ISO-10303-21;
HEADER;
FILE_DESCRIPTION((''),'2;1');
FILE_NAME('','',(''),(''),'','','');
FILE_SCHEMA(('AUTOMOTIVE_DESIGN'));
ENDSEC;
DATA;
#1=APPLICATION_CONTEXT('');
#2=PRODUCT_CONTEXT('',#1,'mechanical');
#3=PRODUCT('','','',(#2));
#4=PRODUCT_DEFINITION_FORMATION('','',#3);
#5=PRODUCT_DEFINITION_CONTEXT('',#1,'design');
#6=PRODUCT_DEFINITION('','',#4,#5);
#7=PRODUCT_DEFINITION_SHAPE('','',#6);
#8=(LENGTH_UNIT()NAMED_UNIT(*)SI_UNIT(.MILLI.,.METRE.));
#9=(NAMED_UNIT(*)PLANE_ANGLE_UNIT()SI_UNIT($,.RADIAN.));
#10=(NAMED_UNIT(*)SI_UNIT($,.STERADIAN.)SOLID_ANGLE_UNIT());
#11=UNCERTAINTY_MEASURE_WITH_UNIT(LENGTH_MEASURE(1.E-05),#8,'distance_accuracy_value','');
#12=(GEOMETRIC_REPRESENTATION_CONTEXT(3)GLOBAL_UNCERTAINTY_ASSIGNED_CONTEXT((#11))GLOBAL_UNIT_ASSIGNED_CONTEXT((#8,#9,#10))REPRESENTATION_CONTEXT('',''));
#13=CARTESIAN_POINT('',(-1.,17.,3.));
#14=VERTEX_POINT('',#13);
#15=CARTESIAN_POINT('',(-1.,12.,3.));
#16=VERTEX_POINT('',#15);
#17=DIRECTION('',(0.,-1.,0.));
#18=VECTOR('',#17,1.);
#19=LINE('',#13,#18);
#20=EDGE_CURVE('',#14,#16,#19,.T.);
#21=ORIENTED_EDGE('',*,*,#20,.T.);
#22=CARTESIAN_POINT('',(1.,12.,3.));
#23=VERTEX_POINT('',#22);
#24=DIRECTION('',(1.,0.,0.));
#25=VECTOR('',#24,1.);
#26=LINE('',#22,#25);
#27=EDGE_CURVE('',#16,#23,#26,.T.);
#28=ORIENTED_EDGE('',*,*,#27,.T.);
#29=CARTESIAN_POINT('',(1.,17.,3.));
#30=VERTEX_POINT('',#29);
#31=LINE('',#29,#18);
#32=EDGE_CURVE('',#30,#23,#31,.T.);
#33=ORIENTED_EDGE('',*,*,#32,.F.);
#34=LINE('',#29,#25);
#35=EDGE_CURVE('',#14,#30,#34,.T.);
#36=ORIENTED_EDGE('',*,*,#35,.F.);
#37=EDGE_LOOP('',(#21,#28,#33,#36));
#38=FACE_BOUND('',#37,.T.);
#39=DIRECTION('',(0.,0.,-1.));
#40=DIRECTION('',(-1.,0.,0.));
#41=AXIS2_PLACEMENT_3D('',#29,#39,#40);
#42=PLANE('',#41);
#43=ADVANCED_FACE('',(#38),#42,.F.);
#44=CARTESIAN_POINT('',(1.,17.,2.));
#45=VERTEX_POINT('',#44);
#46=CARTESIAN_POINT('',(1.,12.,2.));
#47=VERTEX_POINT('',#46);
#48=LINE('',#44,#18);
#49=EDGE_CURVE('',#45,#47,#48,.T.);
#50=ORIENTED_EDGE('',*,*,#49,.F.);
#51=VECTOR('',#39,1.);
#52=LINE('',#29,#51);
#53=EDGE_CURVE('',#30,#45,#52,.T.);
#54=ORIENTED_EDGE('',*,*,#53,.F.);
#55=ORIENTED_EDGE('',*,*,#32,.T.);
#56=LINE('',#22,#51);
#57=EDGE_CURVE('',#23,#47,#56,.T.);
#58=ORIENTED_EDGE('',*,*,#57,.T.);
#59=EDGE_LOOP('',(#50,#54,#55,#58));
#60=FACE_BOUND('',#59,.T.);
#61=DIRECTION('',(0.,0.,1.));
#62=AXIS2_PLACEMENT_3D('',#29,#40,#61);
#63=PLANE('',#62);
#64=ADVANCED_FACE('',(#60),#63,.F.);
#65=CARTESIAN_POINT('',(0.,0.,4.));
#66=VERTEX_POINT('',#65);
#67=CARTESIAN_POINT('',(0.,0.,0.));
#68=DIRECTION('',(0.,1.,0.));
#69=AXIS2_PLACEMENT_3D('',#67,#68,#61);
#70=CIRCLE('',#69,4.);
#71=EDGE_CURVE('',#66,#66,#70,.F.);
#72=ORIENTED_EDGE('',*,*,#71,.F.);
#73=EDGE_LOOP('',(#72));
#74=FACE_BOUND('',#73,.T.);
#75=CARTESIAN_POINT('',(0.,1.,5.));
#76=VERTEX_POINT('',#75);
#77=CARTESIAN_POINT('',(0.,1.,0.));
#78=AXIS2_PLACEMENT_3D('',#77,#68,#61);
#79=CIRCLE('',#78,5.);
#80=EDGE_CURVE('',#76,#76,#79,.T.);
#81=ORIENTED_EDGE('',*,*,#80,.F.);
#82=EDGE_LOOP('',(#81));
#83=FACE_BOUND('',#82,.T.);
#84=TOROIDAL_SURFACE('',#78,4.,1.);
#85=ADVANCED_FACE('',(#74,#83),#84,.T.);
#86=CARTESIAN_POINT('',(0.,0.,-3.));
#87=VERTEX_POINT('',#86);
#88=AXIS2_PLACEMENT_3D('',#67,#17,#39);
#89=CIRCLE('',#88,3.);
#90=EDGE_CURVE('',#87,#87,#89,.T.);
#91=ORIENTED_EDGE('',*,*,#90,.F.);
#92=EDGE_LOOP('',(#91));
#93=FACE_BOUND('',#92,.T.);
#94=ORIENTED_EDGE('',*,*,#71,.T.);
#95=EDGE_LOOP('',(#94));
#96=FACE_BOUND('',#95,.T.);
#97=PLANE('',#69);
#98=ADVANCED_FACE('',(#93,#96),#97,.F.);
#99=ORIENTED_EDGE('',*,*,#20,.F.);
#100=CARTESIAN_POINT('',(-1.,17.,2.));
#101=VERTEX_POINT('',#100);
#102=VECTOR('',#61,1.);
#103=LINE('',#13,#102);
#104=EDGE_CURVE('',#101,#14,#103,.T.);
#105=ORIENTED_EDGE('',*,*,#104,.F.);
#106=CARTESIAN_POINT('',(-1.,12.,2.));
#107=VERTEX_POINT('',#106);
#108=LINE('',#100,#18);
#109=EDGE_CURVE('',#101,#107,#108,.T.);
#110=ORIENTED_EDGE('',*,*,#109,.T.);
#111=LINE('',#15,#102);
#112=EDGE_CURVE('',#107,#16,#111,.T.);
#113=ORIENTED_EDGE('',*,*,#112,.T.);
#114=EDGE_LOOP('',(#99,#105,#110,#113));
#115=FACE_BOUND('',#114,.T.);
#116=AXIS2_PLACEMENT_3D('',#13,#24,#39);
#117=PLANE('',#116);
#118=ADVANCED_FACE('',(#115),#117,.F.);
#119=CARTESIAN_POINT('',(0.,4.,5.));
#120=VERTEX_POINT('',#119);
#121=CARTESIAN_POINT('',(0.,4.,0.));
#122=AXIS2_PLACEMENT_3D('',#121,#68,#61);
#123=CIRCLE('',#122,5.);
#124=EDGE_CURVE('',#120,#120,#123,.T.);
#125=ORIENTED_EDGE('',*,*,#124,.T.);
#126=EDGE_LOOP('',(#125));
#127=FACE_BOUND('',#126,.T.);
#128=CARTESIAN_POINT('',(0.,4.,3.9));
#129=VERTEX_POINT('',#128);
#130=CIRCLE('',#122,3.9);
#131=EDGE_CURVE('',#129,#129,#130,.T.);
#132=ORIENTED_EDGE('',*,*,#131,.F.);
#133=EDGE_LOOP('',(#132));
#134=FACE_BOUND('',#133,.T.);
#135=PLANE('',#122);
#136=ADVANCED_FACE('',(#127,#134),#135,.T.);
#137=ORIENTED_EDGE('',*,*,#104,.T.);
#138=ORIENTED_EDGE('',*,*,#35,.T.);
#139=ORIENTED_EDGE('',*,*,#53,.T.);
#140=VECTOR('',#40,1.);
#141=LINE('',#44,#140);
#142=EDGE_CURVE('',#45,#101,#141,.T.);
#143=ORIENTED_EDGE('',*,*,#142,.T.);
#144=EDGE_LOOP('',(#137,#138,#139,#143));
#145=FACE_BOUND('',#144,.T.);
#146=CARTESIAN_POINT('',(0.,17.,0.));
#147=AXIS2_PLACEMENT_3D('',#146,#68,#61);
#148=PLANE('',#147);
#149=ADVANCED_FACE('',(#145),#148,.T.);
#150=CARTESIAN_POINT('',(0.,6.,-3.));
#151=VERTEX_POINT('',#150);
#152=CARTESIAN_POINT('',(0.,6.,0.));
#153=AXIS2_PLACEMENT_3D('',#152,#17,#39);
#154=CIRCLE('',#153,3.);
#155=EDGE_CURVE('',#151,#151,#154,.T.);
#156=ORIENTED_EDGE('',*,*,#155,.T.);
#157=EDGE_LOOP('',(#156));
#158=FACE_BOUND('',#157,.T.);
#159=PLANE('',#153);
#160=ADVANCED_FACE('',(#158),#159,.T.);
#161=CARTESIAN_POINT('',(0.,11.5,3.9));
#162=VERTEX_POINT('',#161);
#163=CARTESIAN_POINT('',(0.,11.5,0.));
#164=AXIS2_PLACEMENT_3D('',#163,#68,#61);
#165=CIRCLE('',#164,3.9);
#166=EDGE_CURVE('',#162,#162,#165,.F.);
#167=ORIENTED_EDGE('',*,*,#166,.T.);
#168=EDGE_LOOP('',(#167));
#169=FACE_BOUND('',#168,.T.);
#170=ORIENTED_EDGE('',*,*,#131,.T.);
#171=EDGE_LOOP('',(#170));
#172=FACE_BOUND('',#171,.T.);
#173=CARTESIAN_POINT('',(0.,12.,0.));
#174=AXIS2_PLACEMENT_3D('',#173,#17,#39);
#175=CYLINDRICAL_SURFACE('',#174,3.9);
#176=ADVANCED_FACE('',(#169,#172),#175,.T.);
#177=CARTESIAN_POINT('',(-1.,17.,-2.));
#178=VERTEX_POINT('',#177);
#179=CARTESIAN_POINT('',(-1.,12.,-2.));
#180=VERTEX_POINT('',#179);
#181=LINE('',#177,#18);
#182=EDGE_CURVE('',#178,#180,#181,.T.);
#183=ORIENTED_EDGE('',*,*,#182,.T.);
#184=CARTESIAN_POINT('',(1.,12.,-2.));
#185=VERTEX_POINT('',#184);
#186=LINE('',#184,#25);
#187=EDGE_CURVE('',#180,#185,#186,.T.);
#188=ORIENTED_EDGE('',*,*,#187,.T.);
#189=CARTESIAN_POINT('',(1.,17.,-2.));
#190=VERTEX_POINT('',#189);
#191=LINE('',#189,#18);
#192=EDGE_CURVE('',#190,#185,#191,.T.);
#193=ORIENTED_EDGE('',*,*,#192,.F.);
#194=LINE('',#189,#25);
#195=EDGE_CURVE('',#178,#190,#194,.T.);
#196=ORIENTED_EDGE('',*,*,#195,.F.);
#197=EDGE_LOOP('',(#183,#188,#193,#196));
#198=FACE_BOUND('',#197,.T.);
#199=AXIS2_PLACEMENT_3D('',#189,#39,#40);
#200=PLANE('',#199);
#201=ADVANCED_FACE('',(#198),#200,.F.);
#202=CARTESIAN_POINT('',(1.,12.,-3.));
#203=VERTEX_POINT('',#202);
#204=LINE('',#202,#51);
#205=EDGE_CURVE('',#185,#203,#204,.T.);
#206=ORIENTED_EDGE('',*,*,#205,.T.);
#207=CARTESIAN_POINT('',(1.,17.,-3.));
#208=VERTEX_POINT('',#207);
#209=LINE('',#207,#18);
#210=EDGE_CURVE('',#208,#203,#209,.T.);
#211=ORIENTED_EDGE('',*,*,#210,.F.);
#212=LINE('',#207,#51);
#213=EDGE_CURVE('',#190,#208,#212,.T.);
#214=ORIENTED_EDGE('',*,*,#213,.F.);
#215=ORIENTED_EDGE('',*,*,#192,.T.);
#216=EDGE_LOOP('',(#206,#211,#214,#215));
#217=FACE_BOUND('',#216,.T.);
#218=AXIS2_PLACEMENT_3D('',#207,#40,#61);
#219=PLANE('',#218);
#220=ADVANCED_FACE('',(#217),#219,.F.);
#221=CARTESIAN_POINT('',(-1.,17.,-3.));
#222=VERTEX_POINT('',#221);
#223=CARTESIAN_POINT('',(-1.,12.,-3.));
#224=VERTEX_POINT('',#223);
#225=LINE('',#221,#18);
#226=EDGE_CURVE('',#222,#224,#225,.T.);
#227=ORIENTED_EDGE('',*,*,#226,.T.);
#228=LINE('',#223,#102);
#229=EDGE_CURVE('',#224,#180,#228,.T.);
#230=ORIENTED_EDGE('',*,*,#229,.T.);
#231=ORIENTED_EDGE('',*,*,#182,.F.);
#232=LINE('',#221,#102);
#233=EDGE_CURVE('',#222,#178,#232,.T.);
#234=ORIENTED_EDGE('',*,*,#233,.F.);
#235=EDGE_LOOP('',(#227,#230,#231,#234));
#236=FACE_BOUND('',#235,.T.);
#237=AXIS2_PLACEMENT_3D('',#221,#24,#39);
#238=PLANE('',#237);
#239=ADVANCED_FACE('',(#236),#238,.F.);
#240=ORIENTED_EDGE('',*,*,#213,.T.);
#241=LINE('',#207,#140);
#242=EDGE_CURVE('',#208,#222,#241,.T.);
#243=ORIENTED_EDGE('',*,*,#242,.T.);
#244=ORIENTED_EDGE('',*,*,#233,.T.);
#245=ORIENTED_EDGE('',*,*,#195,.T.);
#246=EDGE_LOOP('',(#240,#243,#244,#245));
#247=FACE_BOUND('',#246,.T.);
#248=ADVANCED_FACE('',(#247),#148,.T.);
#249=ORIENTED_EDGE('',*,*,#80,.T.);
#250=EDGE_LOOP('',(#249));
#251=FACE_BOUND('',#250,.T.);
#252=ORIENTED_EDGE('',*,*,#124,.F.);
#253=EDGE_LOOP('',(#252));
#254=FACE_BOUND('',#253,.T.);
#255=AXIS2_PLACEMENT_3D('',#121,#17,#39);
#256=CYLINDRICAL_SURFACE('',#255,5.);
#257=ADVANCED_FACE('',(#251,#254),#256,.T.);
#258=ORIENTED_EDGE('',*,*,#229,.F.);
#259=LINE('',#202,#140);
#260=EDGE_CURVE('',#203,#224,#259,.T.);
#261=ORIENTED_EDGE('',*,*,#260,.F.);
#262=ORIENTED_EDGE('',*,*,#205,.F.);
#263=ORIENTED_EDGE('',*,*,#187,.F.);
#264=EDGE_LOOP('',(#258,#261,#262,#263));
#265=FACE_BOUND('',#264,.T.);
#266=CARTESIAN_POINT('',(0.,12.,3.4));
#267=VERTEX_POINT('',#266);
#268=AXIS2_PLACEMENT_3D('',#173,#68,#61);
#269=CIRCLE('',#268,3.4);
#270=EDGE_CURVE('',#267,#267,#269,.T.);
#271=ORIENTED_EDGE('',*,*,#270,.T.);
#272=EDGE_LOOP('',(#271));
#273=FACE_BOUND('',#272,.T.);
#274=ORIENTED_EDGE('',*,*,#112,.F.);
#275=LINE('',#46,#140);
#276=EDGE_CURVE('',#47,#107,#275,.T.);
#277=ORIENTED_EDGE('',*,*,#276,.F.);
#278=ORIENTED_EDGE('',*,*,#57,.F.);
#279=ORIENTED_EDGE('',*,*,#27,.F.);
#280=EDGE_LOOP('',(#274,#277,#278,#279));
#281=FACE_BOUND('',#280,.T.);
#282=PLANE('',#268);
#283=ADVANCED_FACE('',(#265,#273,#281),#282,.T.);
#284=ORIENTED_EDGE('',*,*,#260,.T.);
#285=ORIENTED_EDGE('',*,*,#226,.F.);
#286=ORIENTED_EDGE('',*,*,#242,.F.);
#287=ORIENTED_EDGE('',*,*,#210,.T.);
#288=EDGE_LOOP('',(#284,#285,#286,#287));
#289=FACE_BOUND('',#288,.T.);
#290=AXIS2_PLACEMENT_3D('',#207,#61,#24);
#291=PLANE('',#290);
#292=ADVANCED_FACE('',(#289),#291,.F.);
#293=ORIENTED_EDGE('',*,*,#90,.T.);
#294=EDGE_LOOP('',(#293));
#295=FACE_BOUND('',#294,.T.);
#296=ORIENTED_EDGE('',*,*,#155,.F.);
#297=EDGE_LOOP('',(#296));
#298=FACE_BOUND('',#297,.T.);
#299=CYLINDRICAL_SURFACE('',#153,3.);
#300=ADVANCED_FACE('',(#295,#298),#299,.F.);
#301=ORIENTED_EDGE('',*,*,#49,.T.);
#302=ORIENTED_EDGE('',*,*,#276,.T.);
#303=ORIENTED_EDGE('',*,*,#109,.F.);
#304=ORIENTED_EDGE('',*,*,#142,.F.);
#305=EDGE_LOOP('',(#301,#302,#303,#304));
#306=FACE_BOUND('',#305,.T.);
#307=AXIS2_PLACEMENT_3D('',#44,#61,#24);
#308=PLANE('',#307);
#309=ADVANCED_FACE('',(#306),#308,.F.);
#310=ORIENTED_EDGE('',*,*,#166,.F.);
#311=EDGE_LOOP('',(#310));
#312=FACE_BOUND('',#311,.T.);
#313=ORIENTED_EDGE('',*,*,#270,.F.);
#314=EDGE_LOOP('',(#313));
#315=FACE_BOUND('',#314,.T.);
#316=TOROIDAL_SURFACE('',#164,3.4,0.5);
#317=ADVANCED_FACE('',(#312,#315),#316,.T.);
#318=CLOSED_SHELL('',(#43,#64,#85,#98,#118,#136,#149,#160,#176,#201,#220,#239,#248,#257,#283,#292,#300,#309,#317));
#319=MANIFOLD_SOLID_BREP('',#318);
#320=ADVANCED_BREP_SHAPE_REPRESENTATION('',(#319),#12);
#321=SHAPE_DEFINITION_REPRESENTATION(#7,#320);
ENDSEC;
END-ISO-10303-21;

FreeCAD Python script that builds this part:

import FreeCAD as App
import Part
import Sketcher

V = App.Vector


def edges_at(feature, points):
    """Names of the edges that pass closest to the given points."""
    edges = feature.Shape.Edges
    near = lambda p: min(range(len(edges)), key=lambda i: edges[i].distToShape(Part.Vertex(*p))[0])
    return sorted({f"Edge{near(p) + 1}" for p in points})


def add_polygon(sketch, points):
    """Adds a closed chain of lines whose ends are joined by coincident constraints."""
    first, n = sketch.GeometryCount, len(points)
    for a, b in zip(points, points[1:] + points[:1]):
        sketch.addGeometry(Part.LineSegment(App.Vector(*a, 0), App.Vector(*b, 0)), False)
    for i in range(n):
        sketch.addConstraint(Sketcher.Constraint("Coincident", first + i, 2, first + (i + 1) % n, 1))

doc = App.newDocument("Part")
body = doc.addObject("PartDesign::Body", "Body")

# Sketch on XZ plane
sketch1 = body.newObject("Sketcher::SketchObject", "Sketch")
sketch1.AttachmentSupport = (doc.getObject("XZ_Plane"), [""])
sketch1.MapMode = "FlatFace"
sketch1.addGeometry(Part.Circle(V(0, 0, 0), V(0, 0, 1), 5), False)
sketch1.addConstraint(Sketcher.Constraint("Coincident", 0, 3, -1, 1))
sketch1.addConstraint(Sketcher.Constraint("Diameter", 0, 10.0))
pad1 = body.newObject("PartDesign::Pad", "Pad")
pad1.Profile = sketch1
pad1.Length = 4
pad1.Reversed = True

# Sketch on XZ plane
sketch2 = body.newObject("Sketcher::SketchObject", "Sketch001")
sketch2.AttachmentSupport = (doc.getObject("XZ_Plane"), [""])
sketch2.MapMode = "FlatFace"
sketch2.AttachmentOffset = App.Placement(V(0, 0, -4), App.Rotation())
sketch2.addGeometry(Part.Circle(V(0, 0, 0), V(0, 0, 1), 3.9), False)
sketch2.addConstraint(Sketcher.Constraint("Coincident", 0, 3, -1, 1))
sketch2.addConstraint(Sketcher.Constraint("Diameter", 0, 7.8))
pad2 = body.newObject("PartDesign::Pad", "Pad001")
pad2.Profile = sketch2
pad2.Length = 8
pad2.Reversed = True
doc.recompute()

fillet = body.newObject("PartDesign::Fillet", "Fillet")
fillet.Base = (pad2, edges_at(pad2, [(-5, 0, 0)]))
fillet.Radius = 1

# Sketch on XZ plane
sketch3 = body.newObject("Sketcher::SketchObject", "Sketch002")
sketch3.AttachmentSupport = (doc.getObject("XZ_Plane"), [""])
sketch3.MapMode = "FlatFace"
sketch3.addGeometry(Part.Circle(V(0, 0, 0), V(0, 0, 1), 3), False)
sketch3.addConstraint(Sketcher.Constraint("Coincident", 0, 3, -1, 1))
sketch3.addConstraint(Sketcher.Constraint("Diameter", 0, 6.0))
pocket1 = body.newObject("PartDesign::Pocket", "Pocket")
pocket1.Profile = sketch3
pocket1.Length = 6

# Sketch on XZ plane
sketch4 = body.newObject("Sketcher::SketchObject", "Sketch003")
sketch4.AttachmentSupport = (doc.getObject("XZ_Plane"), [""])
sketch4.MapMode = "FlatFace"
sketch4.AttachmentOffset = App.Placement(V(0, 0, -12), App.Rotation())
add_polygon(sketch4, [(-1, 2), (-1, 3), (1, 3), (1, 2)])  # lines 0-3
add_polygon(sketch4, [(-1, -3), (-1, -2), (1, -2), (1, -3)])  # lines 4-7
sketch4.addConstraint(Sketcher.Constraint("Vertical", 0))
sketch4.addConstraint(Sketcher.Constraint("Horizontal", 1))
sketch4.addConstraint(Sketcher.Constraint("Vertical", 2))
sketch4.addConstraint(Sketcher.Constraint("Horizontal", 3))
sketch4.addConstraint(Sketcher.Constraint("Vertical", 4))
sketch4.addConstraint(Sketcher.Constraint("Horizontal", 5))
sketch4.addConstraint(Sketcher.Constraint("Vertical", 6))
sketch4.addConstraint(Sketcher.Constraint("Horizontal", 7))
sketch4.addConstraint(Sketcher.Constraint("Symmetric", 2, 2, 4, 2, -1, 1))
sketch4.addConstraint(Sketcher.Constraint("Symmetric", 0, 2, 6, 2, -1, 1))
sketch4.addConstraint(Sketcher.Constraint("Vertical", 3, 2, 4, 2))
sketch4.addConstraint(Sketcher.Constraint("DistanceX", 1, 1, 1, 2, 2.0))
sketch4.addConstraint(Sketcher.Constraint("DistanceY", 0, 1, 0, 2, 1.0))
sketch4.addConstraint(Sketcher.Constraint("DistanceY", -1, 1, 0, 2, 3.0))
pad3 = body.newObject("PartDesign::Pad", "Pad002")
pad3.Profile = sketch4
pad3.Length = 5
pad3.Reversed = True
doc.recompute()

fillet2 = body.newObject("PartDesign::Fillet", "Fillet001")
fillet2.Base = (pad3, edges_at(pad3, [(-3.9, 12, 0)]))
fillet2.Radius = 0.5

doc.recompute()
